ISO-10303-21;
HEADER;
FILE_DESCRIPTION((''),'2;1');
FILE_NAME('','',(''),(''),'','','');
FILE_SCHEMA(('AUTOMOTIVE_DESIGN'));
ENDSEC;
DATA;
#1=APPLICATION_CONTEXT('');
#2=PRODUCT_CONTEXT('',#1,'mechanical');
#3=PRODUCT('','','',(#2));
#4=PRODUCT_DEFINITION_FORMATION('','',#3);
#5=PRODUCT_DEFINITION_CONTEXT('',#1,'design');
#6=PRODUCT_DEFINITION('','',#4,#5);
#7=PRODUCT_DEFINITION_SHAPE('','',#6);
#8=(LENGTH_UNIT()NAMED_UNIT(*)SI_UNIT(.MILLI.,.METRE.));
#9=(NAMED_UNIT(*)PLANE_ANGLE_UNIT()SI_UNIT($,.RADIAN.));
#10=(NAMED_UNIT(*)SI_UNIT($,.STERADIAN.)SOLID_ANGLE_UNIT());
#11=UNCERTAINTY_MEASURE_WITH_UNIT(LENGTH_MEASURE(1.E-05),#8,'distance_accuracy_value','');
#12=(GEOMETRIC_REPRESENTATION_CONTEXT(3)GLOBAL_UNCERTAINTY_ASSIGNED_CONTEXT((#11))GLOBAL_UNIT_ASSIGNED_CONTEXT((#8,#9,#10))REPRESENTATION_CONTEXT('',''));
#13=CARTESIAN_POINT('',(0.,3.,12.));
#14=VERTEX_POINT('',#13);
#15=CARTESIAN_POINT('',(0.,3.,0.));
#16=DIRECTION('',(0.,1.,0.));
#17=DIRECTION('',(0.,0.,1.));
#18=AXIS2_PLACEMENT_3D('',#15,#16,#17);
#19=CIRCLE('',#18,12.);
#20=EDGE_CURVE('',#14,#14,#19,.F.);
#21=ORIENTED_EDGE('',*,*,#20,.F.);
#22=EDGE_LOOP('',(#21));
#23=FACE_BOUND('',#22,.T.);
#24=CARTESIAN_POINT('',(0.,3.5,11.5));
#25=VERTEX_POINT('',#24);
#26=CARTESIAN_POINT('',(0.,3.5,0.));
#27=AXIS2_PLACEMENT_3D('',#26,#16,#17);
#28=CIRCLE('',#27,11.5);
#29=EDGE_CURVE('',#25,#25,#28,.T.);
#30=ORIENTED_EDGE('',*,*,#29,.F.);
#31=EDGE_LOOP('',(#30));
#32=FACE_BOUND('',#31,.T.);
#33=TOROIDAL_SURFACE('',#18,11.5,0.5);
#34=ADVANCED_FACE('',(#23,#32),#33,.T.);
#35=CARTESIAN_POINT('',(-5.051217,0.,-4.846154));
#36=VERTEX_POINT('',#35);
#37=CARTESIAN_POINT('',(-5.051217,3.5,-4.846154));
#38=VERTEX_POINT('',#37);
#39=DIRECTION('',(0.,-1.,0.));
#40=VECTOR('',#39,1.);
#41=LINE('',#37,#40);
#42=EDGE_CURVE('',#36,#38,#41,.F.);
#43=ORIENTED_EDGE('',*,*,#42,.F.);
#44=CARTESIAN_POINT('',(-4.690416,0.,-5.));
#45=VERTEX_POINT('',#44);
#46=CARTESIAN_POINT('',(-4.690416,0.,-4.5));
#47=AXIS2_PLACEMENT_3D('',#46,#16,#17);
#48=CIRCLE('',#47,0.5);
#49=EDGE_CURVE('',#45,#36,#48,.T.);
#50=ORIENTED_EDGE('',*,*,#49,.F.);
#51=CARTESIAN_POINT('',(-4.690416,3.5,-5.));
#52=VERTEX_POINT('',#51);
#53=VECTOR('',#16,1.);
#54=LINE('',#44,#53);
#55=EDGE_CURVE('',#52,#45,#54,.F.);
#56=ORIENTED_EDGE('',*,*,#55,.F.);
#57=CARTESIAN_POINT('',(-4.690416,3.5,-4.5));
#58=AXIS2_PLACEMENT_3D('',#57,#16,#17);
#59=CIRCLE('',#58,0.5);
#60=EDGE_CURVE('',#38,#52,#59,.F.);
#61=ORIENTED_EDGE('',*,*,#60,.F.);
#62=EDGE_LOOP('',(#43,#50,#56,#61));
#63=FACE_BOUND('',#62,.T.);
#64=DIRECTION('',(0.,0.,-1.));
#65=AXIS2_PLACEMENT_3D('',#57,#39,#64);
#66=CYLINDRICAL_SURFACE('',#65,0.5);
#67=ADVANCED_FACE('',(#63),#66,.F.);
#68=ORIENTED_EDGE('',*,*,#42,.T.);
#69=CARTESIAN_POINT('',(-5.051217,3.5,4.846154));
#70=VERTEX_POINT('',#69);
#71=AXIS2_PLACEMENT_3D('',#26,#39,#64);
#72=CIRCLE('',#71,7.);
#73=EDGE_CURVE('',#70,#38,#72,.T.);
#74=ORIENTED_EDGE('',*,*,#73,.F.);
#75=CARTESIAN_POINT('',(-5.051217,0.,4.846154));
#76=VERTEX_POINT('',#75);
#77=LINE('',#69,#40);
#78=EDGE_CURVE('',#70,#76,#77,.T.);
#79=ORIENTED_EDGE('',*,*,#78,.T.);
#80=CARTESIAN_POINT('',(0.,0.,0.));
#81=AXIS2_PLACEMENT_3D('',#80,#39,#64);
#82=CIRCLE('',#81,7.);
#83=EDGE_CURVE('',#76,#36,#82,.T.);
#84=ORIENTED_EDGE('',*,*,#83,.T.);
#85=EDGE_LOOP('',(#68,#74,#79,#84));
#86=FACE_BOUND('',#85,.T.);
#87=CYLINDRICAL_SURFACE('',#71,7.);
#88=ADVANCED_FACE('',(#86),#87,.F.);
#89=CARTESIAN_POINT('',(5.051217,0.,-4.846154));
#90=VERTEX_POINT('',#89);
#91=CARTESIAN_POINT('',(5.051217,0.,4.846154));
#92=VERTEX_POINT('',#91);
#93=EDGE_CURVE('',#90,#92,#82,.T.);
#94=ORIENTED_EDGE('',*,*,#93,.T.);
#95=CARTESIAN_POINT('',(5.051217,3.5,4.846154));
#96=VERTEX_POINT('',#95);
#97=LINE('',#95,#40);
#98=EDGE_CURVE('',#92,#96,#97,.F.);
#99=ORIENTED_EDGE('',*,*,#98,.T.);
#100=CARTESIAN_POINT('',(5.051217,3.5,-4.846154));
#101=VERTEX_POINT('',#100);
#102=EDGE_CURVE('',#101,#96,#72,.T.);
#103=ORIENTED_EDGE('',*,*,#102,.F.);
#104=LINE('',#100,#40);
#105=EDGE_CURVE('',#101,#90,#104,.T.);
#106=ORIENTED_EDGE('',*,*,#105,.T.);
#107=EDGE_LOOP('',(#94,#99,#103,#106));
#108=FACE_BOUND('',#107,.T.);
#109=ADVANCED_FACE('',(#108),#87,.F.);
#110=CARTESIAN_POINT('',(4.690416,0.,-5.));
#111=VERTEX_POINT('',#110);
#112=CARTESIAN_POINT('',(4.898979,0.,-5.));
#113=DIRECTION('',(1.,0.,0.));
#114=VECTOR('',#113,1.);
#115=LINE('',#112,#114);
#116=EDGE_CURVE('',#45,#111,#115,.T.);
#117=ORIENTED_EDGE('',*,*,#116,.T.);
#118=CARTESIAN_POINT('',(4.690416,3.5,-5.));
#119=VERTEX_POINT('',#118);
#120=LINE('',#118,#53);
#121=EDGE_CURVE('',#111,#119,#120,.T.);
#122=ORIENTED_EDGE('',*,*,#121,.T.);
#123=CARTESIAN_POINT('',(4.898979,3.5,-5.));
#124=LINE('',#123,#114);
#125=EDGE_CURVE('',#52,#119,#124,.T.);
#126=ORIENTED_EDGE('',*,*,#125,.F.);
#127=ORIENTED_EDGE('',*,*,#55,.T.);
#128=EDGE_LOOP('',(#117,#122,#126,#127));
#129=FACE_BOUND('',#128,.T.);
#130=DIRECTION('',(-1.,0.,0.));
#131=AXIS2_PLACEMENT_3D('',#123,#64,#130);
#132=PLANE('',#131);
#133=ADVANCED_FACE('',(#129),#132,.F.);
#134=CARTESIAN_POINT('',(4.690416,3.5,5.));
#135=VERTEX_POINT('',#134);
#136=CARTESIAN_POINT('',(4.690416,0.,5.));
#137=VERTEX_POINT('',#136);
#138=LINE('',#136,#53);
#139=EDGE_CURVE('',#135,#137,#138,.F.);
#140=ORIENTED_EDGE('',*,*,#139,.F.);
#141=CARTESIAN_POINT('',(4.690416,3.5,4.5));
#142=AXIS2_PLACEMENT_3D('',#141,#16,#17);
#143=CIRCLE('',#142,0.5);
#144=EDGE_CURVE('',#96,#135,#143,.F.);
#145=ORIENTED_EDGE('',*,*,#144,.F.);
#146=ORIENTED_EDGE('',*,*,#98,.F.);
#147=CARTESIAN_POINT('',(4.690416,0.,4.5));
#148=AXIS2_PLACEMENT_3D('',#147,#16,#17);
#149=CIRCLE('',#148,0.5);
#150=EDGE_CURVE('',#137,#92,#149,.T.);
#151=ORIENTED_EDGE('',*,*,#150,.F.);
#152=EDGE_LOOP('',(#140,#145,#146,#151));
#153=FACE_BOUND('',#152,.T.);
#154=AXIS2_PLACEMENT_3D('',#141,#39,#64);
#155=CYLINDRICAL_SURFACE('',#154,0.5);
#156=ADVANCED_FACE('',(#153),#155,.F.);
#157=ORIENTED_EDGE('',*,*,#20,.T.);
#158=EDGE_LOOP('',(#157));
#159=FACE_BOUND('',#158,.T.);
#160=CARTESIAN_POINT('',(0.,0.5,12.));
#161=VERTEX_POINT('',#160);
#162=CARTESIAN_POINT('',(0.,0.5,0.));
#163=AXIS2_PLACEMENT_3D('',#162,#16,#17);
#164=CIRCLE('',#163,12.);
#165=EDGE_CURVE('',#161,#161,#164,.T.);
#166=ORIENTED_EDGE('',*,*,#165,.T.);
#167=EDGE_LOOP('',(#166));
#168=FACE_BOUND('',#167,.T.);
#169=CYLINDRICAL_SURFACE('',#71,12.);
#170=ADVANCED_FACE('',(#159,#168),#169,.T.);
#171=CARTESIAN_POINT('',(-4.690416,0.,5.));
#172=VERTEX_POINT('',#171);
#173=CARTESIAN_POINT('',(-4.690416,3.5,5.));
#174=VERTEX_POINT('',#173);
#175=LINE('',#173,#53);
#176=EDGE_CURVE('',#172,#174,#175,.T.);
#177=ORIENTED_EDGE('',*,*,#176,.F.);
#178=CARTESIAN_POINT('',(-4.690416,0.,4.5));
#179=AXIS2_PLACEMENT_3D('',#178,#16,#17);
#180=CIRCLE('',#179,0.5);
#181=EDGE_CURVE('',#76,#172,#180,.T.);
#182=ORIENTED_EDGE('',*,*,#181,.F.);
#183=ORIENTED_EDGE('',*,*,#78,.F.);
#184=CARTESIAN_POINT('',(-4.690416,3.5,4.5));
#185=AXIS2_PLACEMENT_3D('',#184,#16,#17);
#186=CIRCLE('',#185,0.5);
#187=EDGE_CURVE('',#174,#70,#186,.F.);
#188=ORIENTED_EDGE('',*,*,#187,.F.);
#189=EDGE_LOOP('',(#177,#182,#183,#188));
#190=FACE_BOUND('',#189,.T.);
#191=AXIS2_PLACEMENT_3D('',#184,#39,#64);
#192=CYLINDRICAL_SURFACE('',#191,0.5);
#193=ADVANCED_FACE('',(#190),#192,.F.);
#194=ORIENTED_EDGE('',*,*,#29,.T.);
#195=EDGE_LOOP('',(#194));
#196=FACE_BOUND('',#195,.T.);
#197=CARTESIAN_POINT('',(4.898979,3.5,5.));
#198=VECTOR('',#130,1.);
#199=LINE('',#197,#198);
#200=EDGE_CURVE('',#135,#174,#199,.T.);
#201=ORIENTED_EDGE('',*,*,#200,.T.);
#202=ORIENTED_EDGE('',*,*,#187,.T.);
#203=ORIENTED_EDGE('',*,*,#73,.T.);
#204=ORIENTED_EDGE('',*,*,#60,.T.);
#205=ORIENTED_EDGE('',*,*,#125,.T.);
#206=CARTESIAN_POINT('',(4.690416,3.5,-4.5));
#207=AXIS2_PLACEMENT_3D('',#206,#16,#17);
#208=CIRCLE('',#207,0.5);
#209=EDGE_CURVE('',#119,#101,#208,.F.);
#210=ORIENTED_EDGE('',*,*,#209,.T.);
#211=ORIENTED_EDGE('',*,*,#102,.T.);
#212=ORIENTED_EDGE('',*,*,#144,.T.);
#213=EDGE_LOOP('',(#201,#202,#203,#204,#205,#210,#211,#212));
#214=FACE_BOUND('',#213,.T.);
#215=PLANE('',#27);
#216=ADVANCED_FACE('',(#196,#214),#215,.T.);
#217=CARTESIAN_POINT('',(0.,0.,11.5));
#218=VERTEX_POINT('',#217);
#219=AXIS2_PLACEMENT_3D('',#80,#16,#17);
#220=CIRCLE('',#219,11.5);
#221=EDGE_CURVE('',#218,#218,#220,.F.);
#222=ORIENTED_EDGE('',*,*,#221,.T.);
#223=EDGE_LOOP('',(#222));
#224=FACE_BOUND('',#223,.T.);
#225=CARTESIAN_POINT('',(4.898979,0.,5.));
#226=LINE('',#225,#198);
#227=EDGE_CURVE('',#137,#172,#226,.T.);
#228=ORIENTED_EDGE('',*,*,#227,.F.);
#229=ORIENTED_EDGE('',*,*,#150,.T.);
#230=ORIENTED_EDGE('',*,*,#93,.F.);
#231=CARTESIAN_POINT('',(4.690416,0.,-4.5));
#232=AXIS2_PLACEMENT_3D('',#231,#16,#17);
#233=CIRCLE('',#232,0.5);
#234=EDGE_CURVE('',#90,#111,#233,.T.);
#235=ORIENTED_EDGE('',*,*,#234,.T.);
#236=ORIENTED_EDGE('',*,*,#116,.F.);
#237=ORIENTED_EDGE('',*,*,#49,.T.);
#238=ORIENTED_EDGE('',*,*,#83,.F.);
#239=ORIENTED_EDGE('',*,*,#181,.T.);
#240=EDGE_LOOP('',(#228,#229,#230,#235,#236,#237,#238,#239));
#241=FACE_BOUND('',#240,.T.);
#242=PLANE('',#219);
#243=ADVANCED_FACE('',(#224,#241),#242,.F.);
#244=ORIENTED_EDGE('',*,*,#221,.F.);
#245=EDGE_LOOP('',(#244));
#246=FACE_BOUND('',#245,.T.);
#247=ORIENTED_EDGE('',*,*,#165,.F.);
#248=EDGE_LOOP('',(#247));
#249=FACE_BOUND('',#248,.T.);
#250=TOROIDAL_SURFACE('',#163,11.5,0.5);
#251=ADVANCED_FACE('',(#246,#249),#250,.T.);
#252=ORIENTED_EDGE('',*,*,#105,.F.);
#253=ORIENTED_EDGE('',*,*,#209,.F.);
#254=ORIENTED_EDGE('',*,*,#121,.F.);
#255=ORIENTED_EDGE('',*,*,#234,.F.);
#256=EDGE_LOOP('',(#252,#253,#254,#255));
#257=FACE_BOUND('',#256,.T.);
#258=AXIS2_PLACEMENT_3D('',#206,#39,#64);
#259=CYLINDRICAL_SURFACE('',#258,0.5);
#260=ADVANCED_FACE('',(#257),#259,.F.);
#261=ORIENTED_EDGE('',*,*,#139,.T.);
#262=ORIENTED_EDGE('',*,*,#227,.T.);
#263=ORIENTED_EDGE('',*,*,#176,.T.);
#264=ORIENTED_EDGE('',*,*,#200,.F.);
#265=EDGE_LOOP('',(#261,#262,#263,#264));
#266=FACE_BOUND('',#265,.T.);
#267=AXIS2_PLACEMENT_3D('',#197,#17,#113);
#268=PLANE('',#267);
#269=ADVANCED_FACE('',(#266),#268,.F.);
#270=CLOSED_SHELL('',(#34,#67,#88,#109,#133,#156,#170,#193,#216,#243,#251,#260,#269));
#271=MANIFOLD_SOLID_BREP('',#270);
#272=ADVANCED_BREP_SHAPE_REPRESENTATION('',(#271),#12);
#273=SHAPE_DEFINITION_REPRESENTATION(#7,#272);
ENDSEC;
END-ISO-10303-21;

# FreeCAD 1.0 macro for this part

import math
import FreeCAD as App
import Part
import Sketcher
from FreeCAD import Vector
Q = App.Units.Quantity


def edges_at(feature, points):
    """Names of the edges that pass closest to the given points."""
    edges = feature.Shape.Edges
    near = lambda p: min(range(len(edges)), key=lambda i: edges[i].distToShape(Part.Vertex(*p))[0])
    return sorted({f"Edge{near(p) + 1}" for p in points})

doc = App.newDocument("Part")
params = doc.addObject("Spreadsheet::Sheet", "Params")
for row, (alias, value) in enumerate([
    ("sketch1_diameter", "24 mm"),
    ("pad1_length", "3.5 mm"),
    ("sketch2_radius", "7 mm"),
    ("fillet_radius", "0.5 mm"),
], start=1):
    params.set(f"A{row}", alias)
    params.set(f"B{row}", "=" + value)
    params.setAlias(f"B{row}", alias)

body = doc.addObject("PartDesign::Body", "Body")

# Sketch on XZ plane
sketch1 = body.newObject("Sketcher::SketchObject", "Sketch")
sketch1.AttachmentSupport = (doc.getObject("XZ_Plane"), [""])
sketch1.MapMode = "FlatFace"
sketch1.addGeometry(Part.Circle(Vector(0, 0, 0), Vector(0, 0, 1), 12), False)
sketch1.addConstraint(Sketcher.Constraint("Coincident", 0, 3, -1, 1))
sketch1.addConstraint(Sketcher.Constraint("Diameter", 0, Q("24 mm")))
sketch1.setExpression("Constraints[1]", "Params.sketch1_diameter")
pad1 = body.newObject("PartDesign::Pad", "Pad")
pad1.Profile = sketch1
pad1.setExpression("Length", "Params.pad1_length")
pad1.Reversed = True

# Sketch on XZ plane
sketch2 = body.newObject("Sketcher::SketchObject", "Sketch001")
sketch2.AttachmentSupport = (doc.getObject("XZ_Plane"), [""])
sketch2.MapMode = "FlatFace"
sketch2.addGeometry(Part.LineSegment(Vector(-5, -5, 0), Vector(5, -5, 0)), False)
sketch2.addGeometry(Part.ArcOfCircle(Part.Circle(Vector(0, 0, 0), Vector(0, 0, 1), 7), math.radians(-46), math.radians(46)), False)
sketch2.addGeometry(Part.LineSegment(Vector(5, 5, 0), Vector(-5, 5, 0)), False)
sketch2.addGeometry(Part.ArcOfCircle(Part.Circle(Vector(0, 0, 0), Vector(0, 0, 1), 7), math.radians(134), math.radians(226)), False)
sketch2.addConstraint(Sketcher.Constraint("Coincident", 0, 2, 1, 1))
sketch2.addConstraint(Sketcher.Constraint("Coincident", 1, 2, 2, 1))
sketch2.addConstraint(Sketcher.Constraint("Coincident", 2, 2, 3, 1))
sketch2.addConstraint(Sketcher.Constraint("Coincident", 3, 2, 0, 1))
sketch2.addConstraint(Sketcher.Constraint("Horizontal", 0))
sketch2.addConstraint(Sketcher.Constraint("Horizontal", 2))
sketch2.addConstraint(Sketcher.Constraint("Coincident", 1, 3, -1, 1))
sketch2.addConstraint(Sketcher.Constraint("Coincident", 3, 3, -1, 1))
sketch2.addConstraint(Sketcher.Constraint("Equal", 1, 3))
sketch2.addConstraint(Sketcher.Constraint("Vertical", 0, 2, 1, 2))
sketch2.addConstraint(Sketcher.Constraint("Radius", 1, Q("7 mm")))
sketch2.addConstraint(Sketcher.Constraint("DistanceY", 0, 2, -1, 1, Q("5 mm")))
sketch2.setExpression("Constraints[10]", "Params.sketch2_radius")
pocket1 = body.newObject("PartDesign::Pocket", "Pocket")
pocket1.Profile = sketch2
pocket1.Type = "ThroughAll"
doc.recompute()

fillet = body.newObject("PartDesign::Fillet", "Fillet")
fillet.Base = (pocket1, edges_at(pocket1, [
    (4.899, 1.75, -5),
    (-4.899, 1.75, -5),
    (-4.899, 1.75, 5),
    (0, 0, -12),
    (0, 3.5, -12),
    (4.899, 1.75, 5),
]))
fillet.setExpression("Radius", "Params.fillet_radius")

doc.recompute()
